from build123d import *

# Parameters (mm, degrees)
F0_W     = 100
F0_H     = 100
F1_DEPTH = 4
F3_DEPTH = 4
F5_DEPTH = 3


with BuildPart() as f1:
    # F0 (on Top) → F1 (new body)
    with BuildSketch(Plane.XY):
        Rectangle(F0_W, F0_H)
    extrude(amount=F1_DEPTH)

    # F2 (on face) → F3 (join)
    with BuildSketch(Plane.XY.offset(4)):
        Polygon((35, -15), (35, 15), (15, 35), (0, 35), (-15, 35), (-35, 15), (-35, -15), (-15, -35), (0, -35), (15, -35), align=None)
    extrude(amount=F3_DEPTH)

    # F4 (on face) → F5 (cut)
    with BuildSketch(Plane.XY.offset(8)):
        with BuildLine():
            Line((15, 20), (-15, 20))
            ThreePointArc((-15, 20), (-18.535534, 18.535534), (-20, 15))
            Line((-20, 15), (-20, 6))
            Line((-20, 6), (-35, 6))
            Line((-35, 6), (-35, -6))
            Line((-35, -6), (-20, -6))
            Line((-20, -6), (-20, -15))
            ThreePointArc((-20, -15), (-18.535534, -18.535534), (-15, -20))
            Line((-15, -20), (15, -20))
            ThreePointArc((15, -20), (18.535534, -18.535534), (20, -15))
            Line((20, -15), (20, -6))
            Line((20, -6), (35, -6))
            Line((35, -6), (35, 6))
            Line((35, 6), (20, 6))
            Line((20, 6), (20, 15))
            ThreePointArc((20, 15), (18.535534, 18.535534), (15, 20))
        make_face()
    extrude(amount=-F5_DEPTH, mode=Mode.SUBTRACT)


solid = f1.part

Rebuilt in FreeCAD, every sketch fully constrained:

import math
import FreeCAD as App
import Part
import Sketcher

V = App.Vector
Q = App.Units.Quantity


def add_polygon(sketch, points):
    """Adds a closed chain of lines whose ends are joined by coincident constraints."""
    first, n = sketch.GeometryCount, len(points)
    for a, b in zip(points, points[1:] + points[:1]):
        sketch.addGeometry(Part.LineSegment(App.Vector(*a, 0), App.Vector(*b, 0)), False)
    for i in range(n):
        sketch.addConstraint(Sketcher.Constraint("Coincident", first + i, 2, first + (i + 1) % n, 1))

doc = App.newDocument("Part")
params = doc.addObject("Spreadsheet::Sheet", "Params")
for row, (alias, value) in enumerate([
    ("sketch1_width", "100 mm"),
    ("pad1_length", "4 mm"),
    ("sketch2_width", "30 mm"),
    ("pad2_length", "4 mm"),
    ("sketch3_radius", "5 mm"),
    ("sketch3_width", "30 mm"),
    ("sketch3_width2", "15 mm"),
    ("sketch3_height", "9 mm"),
    ("sketch3_height2", "12 mm"),
    ("pocket1_length", "3 mm"),
], start=1):
    params.set(f"A{row}", alias)
    params.set(f"B{row}", "=" + value)
    params.setAlias(f"B{row}", alias)

body = doc.addObject("PartDesign::Body", "Body")

sketch1 = body.newObject("Sketcher::SketchObject", "Sketch")
sketch1.AttachmentSupport = (doc.getObject("XY_Plane"), [""])
sketch1.MapMode = "FlatFace"
add_polygon(sketch1, [(-50, 50), (-50, -50), (50, -50), (50, 50)])
sketch1.addConstraint(Sketcher.Constraint("Vertical", 0))
sketch1.addConstraint(Sketcher.Constraint("Horizontal", 1))
sketch1.addConstraint(Sketcher.Constraint("Vertical", 2))
sketch1.addConstraint(Sketcher.Constraint("Horizontal", 3))
sketch1.addConstraint(Sketcher.Constraint("Symmetric", 0, 2, 2, 2, -1, 1))
sketch1.addConstraint(Sketcher.Constraint("Equal", 3, 0))
sketch1.addConstraint(Sketcher.Constraint("DistanceX", 1, 1, 1, 2, Q("100 mm")))
sketch1.setExpression("Constraints[10]", "Params.sketch1_width")
pad1 = body.newObject("PartDesign::Pad", "Pad")
pad1.Profile = sketch1
pad1.setExpression("Length", "Params.pad1_length")

sketch2 = body.newObject("Sketcher::SketchObject", "Sketch001")
sketch2.AttachmentSupport = (doc.getObject("XY_Plane"), [""])
sketch2.MapMode = "FlatFace"
sketch2.AttachmentOffset = App.Placement(V(0, 0, 4), App.Rotation())
add_polygon(sketch2, [(35, -15), (35, 15), (15, 35), (-15, 35), (-35, 15), (-35, -15), (-15, -35), (15, -35)])
sketch2.addConstraint(Sketcher.Constraint("Vertical", 0))
sketch2.addConstraint(Sketcher.Constraint("Horizontal", 2))
sketch2.addConstraint(Sketcher.Constraint("Vertical", 4))
sketch2.addConstraint(Sketcher.Constraint("Horizontal", 6))
sketch2.addConstraint(Sketcher.Constraint("Symmetric", 0, 2, 4, 2, -1, 1))
sketch2.addConstraint(Sketcher.Constraint("Symmetric", 1, 2, 5, 2, -1, 1))
sketch2.addConstraint(Sketcher.Constraint("Perpendicular", 1, 3))
sketch2.addConstraint(Sketcher.Constraint("Perpendicular", 5, 7))
sketch2.addConstraint(Sketcher.Constraint("Horizontal", 0, 2, 3, 2))
sketch2.addConstraint(Sketcher.Constraint("Horizontal", 4, 2, 7, 2))
sketch2.addConstraint(Sketcher.Constraint("Vertical", 2, 2, 5, 2))
sketch2.addConstraint(Sketcher.Constraint("Equal", 6, 0))
sketch2.addConstraint(Sketcher.Constraint("DistanceX", 2, 2, 2, 1, Q("30 mm")))
sketch2.addConstraint(Sketcher.Constraint("DistanceX", -1, 1, 0, 2, Q("35 mm")))
sketch2.setExpression("Constraints[20]", "Params.sketch2_width")
pad2 = body.newObject("PartDesign::Pad", "Pad001")
pad2.Profile = sketch2
pad2.setExpression("Length", "Params.pad2_length")

sketch3 = body.newObject("Sketcher::SketchObject", "Sketch002")
sketch3.AttachmentSupport = (doc.getObject("XY_Plane"), [""])
sketch3.MapMode = "FlatFace"
sketch3.AttachmentOffset = App.Placement(V(0, 0, 8), App.Rotation())
sketch3.addGeometry(Part.LineSegment(V(15, 20, 0), V(-15, 20, 0)), False)
sketch3.addGeometry(Part.ArcOfCircle(Part.Circle(V(-15, 15, 0), V(0, 0, 1), 5), math.radians(90), math.radians(180)), False)
sketch3.addGeometry(Part.LineSegment(V(-20, 15, 0), V(-20, 6, 0)), False)
sketch3.addGeometry(Part.LineSegment(V(-20, 6, 0), V(-35, 6, 0)), False)
sketch3.addGeometry(Part.LineSegment(V(-35, 6, 0), V(-35, -6, 0)), False)
sketch3.addGeometry(Part.LineSegment(V(-35, -6, 0), V(-20, -6, 0)), False)
sketch3.addGeometry(Part.LineSegment(V(-20, -6, 0), V(-20, -15, 0)), False)
sketch3.addGeometry(Part.ArcOfCircle(Part.Circle(V(-15, -15, 0), V(0, 0, 1), 5), math.radians(180), math.radians(270)), False)
sketch3.addGeometry(Part.LineSegment(V(-15, -20, 0), V(15, -20, 0)), False)
sketch3.addGeometry(Part.ArcOfCircle(Part.Circle(V(15, -15, 0), V(0, 0, 1), 5), math.radians(-90), math.radians(0)), False)
sketch3.addGeometry(Part.LineSegment(V(20, -15, 0), V(20, -6, 0)), False)
sketch3.addGeometry(Part.LineSegment(V(20, -6, 0), V(35, -6, 0)), False)
sketch3.addGeometry(Part.LineSegment(V(35, -6, 0), V(35, 6, 0)), False)
sketch3.addGeometry(Part.LineSegment(V(35, 6, 0), V(20, 6, 0)), False)
sketch3.addGeometry(Part.LineSegment(V(20, 6, 0), V(20, 15, 0)), False)
sketch3.addGeometry(Part.ArcOfCircle(Part.Circle(V(15, 15, 0), V(0, 0, 1), 5), math.radians(0), math.radians(90)), False)
sketch3.addConstraint(Sketcher.Constraint("Tangent", 0, 2, 1, 1))
sketch3.addConstraint(Sketcher.Constraint("Tangent", 1, 2, 2, 1))
sketch3.addConstraint(Sketcher.Constraint("Coincident", 2, 2, 3, 1))
sketch3.addConstraint(Sketcher.Constraint("Coincident", 3, 2, 4, 1))
sketch3.addConstraint(Sketcher.Constraint("Coincident", 4, 2, 5, 1))
sketch3.addConstraint(Sketcher.Constraint("Coincident", 5, 2, 6, 1))
sketch3.addConstraint(Sketcher.Constraint("Tangent", 6, 2, 7, 1))
sketch3.addConstraint(Sketcher.Constraint("Tangent", 7, 2, 8, 1))
sketch3.addConstraint(Sketcher.Constraint("Tangent", 8, 2, 9, 1))
sketch3.addConstraint(Sketcher.Constraint("Tangent", 9, 2, 10, 1))
sketch3.addConstraint(Sketcher.Constraint("Coincident", 10, 2, 11, 1))
sketch3.addConstraint(Sketcher.Constraint("Coincident", 11, 2, 12, 1))
sketch3.addConstraint(Sketcher.Constraint("Coincident", 12, 2, 13, 1))
sketch3.addConstraint(Sketcher.Constraint("Coincident", 13, 2, 14, 1))
sketch3.addConstraint(Sketcher.Constraint("Tangent", 14, 2, 15, 1))
sketch3.addConstraint(Sketcher.Constraint("Tangent", 15, 2, 0, 1))
sketch3.addConstraint(Sketcher.Constraint("Horizontal", 0))
sketch3.addConstraint(Sketcher.Constraint("Vertical", 2))
sketch3.addConstraint(Sketcher.Constraint("Horizontal", 3))
sketch3.addConstraint(Sketcher.Constraint("Vertical", 4))
sketch3.addConstraint(Sketcher.Constraint("Horizontal", 5))
sketch3.addConstraint(Sketcher.Constraint("Vertical", 6))
sketch3.addConstraint(Sketcher.Constraint("Horizontal", 8))
sketch3.addConstraint(Sketcher.Constraint("Vertical", 10))
sketch3.addConstraint(Sketcher.Constraint("Horizontal", 11))
sketch3.addConstraint(Sketcher.Constraint("Vertical", 12))
sketch3.addConstraint(Sketcher.Constraint("Horizontal", 13))
sketch3.addConstraint(Sketcher.Constraint("Vertical", 14))
sketch3.addConstraint(Sketcher.Constraint("Equal", 1, 7))
sketch3.addConstraint(Sketcher.Constraint("Equal", 7, 9))
sketch3.addConstraint(Sketcher.Constraint("Equal", 9, 15))
sketch3.addConstraint(Sketcher.Constraint("Symmetric", 1, 3, 9, 3, -1, 1))
sketch3.addConstraint(Sketcher.Constraint("Symmetric", 3, 2, 11, 2, -1, 1))
sketch3.addConstraint(Sketcher.Constraint("Symmetric", 5, 2, 13, 2, -1, 1))
sketch3.addConstraint(Sketcher.Constraint("Symmetric", 5, 2, 10, 2, -2))
sketch3.addConstraint(Sketcher.Constraint("Radius", 1, Q("5 mm")))
sketch3.addConstraint(Sketcher.Constraint("DistanceX", 0, 2, 0, 1, Q("30 mm")))
sketch3.addConstraint(Sketcher.Constraint("DistanceX", 3, 2, 3, 1, Q("15 mm")))
sketch3.addConstraint(Sketcher.Constraint("DistanceY", 2, 2, 2, 1, Q("9 mm")))
sketch3.addConstraint(Sketcher.Constraint("DistanceY", 4, 2, 4, 1, Q("12 mm")))
sketch3.setExpression("Constraints[35]", "Params.sketch3_radius")
sketch3.setExpression("Constraints[36]", "Params.sketch3_width")
sketch3.setExpression("Constraints[37]", "Params.sketch3_width2")
sketch3.setExpression("Constraints[38]", "Params.sketch3_height")
sketch3.setExpression("Constraints[39]", "Params.sketch3_height2")
pocket1 = body.newObject("PartDesign::Pocket", "Pocket")
pocket1.Profile = sketch3
pocket1.setExpression("Length", "Params.pocket1_length")

doc.recompute()
